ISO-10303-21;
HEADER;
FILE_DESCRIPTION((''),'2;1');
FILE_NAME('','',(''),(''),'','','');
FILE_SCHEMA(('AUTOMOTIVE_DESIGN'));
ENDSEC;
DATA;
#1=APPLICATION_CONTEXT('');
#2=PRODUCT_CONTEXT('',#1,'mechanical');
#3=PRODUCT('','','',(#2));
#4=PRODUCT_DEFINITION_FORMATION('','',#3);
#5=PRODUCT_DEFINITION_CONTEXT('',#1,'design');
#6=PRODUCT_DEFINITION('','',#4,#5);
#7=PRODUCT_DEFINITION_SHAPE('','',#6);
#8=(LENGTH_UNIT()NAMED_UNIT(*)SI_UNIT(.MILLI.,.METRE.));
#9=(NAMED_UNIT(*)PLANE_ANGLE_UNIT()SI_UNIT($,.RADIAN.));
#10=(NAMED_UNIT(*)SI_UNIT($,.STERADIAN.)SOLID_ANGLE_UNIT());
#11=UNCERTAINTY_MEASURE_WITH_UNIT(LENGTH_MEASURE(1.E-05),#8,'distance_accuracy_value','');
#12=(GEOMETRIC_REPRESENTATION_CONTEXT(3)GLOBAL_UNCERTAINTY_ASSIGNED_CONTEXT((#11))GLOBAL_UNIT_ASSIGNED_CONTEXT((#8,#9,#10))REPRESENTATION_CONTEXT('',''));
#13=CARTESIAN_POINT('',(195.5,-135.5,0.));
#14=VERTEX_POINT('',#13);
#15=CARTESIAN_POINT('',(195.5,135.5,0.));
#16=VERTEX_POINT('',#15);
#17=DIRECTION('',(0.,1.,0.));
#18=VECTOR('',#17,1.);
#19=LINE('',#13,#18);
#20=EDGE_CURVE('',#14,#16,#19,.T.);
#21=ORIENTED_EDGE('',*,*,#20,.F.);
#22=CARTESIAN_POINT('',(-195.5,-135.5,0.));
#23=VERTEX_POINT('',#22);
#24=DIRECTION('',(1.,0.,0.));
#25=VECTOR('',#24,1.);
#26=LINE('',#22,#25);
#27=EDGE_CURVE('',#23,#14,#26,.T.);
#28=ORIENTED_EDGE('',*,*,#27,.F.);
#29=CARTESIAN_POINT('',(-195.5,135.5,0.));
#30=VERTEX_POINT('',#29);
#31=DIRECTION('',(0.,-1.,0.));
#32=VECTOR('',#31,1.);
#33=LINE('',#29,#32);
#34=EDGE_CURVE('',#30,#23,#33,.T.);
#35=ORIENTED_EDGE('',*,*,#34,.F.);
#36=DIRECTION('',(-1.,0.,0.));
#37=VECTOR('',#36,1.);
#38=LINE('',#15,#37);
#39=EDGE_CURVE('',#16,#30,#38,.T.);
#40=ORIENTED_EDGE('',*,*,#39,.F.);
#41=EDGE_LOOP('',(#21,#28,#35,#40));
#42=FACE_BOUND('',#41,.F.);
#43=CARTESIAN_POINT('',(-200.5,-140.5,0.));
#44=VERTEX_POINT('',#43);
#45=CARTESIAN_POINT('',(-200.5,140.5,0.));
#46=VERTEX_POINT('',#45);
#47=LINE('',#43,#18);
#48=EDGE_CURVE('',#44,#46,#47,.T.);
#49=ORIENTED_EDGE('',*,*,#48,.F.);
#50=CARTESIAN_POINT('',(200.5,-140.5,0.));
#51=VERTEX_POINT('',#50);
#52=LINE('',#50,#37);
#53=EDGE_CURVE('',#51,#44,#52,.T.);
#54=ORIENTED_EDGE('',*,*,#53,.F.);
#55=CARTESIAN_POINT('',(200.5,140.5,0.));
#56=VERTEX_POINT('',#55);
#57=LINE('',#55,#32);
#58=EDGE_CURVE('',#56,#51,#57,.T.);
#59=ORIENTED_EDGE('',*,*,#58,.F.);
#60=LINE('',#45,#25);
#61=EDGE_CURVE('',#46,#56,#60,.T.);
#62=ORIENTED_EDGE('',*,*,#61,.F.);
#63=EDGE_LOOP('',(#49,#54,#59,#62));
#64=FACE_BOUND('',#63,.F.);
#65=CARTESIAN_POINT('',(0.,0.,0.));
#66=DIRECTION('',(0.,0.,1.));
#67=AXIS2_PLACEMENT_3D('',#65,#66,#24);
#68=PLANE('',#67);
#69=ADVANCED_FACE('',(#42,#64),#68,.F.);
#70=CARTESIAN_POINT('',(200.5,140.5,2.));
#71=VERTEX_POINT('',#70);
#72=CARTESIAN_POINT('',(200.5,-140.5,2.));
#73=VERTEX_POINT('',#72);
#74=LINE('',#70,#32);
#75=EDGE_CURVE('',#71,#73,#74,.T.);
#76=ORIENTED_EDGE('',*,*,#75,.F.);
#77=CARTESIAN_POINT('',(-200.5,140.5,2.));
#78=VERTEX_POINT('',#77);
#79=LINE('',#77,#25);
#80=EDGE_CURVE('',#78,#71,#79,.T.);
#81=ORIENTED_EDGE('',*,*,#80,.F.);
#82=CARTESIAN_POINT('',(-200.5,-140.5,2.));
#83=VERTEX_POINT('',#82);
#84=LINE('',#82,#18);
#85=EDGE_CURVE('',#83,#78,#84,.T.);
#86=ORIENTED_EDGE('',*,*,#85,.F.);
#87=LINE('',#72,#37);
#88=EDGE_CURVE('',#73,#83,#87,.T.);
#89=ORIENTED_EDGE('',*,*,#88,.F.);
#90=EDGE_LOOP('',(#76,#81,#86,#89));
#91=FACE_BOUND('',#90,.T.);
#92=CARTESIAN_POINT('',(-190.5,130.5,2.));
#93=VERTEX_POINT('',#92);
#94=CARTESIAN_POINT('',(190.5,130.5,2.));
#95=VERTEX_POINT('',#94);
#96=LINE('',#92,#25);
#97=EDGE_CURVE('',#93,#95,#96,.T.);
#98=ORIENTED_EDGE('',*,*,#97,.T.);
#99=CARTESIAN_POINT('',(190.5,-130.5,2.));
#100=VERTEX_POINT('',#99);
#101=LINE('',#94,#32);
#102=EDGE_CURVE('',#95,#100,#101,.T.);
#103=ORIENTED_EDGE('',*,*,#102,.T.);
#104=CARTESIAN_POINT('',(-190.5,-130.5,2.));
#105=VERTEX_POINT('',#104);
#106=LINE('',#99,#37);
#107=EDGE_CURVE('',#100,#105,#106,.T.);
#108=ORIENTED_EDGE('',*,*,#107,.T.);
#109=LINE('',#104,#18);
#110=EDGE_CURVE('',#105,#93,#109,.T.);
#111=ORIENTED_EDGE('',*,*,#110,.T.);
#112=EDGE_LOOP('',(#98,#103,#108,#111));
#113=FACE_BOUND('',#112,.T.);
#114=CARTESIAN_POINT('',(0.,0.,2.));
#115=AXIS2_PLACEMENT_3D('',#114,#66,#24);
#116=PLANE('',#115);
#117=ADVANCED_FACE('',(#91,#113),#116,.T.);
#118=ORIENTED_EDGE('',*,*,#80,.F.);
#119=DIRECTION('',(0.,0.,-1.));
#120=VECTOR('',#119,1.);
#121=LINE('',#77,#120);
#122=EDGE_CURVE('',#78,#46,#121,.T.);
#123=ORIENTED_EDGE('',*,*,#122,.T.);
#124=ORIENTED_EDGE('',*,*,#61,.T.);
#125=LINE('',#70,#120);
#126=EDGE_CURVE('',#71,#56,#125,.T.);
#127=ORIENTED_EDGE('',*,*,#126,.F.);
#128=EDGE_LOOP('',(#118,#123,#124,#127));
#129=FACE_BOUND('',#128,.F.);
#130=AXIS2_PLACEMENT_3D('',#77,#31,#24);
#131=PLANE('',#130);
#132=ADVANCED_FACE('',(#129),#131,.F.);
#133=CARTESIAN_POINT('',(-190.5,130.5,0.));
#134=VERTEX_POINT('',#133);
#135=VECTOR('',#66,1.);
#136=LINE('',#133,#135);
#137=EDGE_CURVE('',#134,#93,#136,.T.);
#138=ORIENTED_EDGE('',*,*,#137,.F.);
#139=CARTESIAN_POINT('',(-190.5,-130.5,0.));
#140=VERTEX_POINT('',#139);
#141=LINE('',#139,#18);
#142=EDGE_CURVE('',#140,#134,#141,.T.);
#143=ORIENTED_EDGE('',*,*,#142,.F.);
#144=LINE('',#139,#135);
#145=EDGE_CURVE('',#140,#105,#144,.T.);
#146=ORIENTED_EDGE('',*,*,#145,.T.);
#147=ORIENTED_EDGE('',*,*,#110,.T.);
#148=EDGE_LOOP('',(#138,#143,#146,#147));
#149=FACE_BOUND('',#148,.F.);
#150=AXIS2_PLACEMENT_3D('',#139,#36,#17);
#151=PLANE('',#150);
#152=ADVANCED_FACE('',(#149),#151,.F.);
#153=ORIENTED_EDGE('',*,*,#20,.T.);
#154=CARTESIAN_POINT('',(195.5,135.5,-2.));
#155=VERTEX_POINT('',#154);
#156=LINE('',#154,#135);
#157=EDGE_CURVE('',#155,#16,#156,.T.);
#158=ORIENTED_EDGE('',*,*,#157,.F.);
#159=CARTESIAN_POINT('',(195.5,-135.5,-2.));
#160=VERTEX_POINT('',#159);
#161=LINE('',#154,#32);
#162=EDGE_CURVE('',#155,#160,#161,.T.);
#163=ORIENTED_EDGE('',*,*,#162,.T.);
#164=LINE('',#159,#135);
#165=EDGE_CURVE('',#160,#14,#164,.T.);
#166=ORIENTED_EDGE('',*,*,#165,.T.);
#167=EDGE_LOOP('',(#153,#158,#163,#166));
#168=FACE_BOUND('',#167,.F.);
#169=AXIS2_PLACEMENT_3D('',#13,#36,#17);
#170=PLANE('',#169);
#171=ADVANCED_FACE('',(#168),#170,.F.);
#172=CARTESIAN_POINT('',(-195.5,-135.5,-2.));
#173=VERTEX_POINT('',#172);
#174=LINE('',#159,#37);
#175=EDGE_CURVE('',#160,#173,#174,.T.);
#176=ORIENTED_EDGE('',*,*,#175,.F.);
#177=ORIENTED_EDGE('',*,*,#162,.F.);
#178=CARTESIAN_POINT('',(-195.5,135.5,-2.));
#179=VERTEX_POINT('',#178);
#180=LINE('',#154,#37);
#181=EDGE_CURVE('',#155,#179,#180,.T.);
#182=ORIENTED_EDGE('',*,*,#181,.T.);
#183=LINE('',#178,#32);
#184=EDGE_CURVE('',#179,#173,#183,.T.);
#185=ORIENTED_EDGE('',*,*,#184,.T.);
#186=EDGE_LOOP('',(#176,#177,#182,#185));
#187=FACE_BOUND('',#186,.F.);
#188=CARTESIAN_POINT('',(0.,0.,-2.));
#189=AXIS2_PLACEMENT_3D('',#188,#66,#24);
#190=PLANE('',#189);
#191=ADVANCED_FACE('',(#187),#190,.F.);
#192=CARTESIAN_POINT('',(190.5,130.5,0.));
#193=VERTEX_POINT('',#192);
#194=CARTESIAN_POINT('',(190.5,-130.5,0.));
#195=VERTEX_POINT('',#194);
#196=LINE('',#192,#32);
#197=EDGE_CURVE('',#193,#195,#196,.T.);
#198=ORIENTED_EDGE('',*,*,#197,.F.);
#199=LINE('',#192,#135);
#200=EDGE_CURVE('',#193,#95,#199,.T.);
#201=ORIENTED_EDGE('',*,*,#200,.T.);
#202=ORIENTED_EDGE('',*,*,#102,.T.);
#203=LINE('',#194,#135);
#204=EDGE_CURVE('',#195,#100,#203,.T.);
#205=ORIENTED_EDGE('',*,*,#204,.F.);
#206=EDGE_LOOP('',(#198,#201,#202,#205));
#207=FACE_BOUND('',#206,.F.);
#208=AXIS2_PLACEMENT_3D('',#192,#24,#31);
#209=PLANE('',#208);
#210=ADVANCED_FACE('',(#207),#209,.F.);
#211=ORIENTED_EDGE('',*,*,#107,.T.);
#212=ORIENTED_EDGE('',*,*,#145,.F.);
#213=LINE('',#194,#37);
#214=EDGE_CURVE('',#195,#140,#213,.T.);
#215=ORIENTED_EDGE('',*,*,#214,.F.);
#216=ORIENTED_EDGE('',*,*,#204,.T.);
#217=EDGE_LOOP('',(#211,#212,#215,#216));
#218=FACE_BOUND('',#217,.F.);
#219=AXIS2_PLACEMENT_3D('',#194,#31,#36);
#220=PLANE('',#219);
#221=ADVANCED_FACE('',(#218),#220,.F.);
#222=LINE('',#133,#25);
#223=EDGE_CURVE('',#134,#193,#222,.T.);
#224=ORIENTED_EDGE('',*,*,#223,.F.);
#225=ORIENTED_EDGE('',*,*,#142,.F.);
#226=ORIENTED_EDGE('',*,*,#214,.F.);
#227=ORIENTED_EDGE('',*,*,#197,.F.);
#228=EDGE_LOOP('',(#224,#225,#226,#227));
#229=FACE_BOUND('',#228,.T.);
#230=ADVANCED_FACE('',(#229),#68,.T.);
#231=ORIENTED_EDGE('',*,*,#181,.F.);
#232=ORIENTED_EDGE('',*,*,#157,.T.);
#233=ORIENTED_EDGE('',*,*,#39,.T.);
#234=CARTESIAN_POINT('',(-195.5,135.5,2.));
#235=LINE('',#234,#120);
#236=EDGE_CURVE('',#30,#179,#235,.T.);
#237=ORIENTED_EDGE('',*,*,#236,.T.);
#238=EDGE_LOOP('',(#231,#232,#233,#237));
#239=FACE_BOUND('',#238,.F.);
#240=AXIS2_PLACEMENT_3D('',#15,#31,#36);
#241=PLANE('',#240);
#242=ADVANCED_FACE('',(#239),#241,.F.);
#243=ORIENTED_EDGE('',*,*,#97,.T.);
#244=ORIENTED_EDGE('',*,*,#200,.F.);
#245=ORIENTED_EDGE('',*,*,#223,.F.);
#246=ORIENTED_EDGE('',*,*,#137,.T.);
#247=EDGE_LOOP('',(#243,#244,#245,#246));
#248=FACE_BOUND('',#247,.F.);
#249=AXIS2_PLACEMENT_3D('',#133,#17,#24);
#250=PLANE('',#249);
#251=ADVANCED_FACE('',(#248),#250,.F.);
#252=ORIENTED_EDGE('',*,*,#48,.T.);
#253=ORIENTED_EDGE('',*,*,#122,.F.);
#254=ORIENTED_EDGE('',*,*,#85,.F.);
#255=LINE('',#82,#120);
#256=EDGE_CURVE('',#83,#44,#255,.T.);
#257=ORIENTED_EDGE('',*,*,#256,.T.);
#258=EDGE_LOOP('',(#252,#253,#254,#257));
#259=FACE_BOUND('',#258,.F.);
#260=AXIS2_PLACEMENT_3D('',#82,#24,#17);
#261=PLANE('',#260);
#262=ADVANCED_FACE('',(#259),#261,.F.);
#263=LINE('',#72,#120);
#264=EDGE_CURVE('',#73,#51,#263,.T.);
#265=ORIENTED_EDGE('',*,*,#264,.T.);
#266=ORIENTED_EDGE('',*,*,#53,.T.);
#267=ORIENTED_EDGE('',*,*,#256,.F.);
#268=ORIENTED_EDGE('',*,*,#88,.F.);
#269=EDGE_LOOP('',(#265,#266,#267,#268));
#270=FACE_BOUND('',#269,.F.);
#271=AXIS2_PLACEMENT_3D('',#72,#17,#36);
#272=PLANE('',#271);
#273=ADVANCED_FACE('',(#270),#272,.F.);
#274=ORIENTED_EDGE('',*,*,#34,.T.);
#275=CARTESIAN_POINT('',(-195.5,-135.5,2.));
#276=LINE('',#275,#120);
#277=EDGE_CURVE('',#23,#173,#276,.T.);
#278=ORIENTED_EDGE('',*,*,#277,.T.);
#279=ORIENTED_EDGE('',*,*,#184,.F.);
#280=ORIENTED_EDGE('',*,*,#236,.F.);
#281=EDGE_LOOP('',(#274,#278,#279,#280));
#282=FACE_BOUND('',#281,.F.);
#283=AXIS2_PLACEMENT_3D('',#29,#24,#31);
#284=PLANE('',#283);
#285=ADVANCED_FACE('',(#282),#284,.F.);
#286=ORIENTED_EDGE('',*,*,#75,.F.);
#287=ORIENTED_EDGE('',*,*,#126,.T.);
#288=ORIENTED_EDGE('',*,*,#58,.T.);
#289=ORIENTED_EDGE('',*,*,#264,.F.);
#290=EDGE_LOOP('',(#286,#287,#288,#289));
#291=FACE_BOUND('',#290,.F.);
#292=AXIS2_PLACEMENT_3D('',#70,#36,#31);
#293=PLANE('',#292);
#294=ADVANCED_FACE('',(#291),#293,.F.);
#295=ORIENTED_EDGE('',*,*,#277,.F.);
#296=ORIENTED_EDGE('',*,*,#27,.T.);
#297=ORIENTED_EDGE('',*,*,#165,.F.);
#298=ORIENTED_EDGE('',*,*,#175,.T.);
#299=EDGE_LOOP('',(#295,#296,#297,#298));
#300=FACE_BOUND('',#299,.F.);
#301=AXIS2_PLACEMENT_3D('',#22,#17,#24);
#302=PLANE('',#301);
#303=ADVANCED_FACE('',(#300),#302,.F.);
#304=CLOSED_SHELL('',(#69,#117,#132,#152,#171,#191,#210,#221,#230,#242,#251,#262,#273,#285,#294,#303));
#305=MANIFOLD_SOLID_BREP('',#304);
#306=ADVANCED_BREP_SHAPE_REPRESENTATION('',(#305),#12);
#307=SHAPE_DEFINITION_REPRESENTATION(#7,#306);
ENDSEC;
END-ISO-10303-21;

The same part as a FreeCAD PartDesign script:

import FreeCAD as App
import Part
import Sketcher
from FreeCAD import Vector
Q = App.Units.Quantity

doc = App.newDocument("Part")
body = doc.addObject("PartDesign::Body", "Body")

sketch1 = doc.addObject("Sketcher::SketchObject", "Sketch")
body.addObject(sketch1)
sketch1.AttachmentSupport = (doc.XY_Plane, [""])
sketch1.MapMode = "FlatFace"
sketch1.addGeometry([
    Part.LineSegment(Vector(-195.5, 135.5, 0), Vector(-195.5, -135.5, 0)),
    Part.LineSegment(Vector(-195.5, -135.5, 0), Vector(195.5, -135.5, 0)),
    Part.LineSegment(Vector(195.5, -135.5, 0), Vector(195.5, 135.5, 0)),
    Part.LineSegment(Vector(195.5, 135.5, 0), Vector(-195.5, 135.5, 0)),
], False)
sketch1.addConstraint([
    Sketcher.Constraint("Coincident", 0, 2, 1, 1),
    Sketcher.Constraint("Coincident", 1, 2, 2, 1),
    Sketcher.Constraint("Coincident", 2, 2, 3, 1),
    Sketcher.Constraint("Coincident", 3, 2, 0, 1),
    Sketcher.Constraint("Vertical", 0),
    Sketcher.Constraint("Horizontal", 1),
    Sketcher.Constraint("Vertical", 2),
    Sketcher.Constraint("Horizontal", 3),
    Sketcher.Constraint("Symmetric", 0, 2, 2, 2, -1, 1),
    Sketcher.Constraint("DistanceX", 1, 1, 1, 2, Q("15.3937 in")),
    Sketcher.Constraint("DistanceY", 0, 2, 0, 1, Q("10.6693 in")),
])
pad1 = doc.addObject("PartDesign::Pad", "Pad")
body.addObject(pad1)
pad1.Profile = sketch1
pad1.Length = 2
pad1.Reversed = True

sketch2 = doc.addObject("Sketcher::SketchObject", "Sketch001")
body.addObject(sketch2)
sketch2.AttachmentSupport = (doc.XY_Plane, [""])
sketch2.MapMode = "FlatFace"
sketch2.addGeometry([
    Part.LineSegment(Vector(-195.5, -135.5, 0), Vector(195.5, -135.5, 0)),
    Part.LineSegment(Vector(195.5, -135.5, 0), Vector(195.5, 135.5, 0)),
    Part.LineSegment(Vector(195.5, 135.5, 0), Vector(-195.5, 135.5, 0)),
    Part.LineSegment(Vector(-195.5, 135.5, 0), Vector(-195.5, -135.5, 0)),
    Part.LineSegment(Vector(-190.5, -130.5, 0), Vector(-190.5, 130.5, 0)),
    Part.LineSegment(Vector(-190.5, 130.5, 0), Vector(190.5, 130.5, 0)),
    Part.LineSegment(Vector(190.5, 130.5, 0), Vector(190.5, -130.5, 0)),
    Part.LineSegment(Vector(190.5, -130.5, 0), Vector(-190.5, -130.5, 0)),
], False)
sketch2.addConstraint([
    Sketcher.Constraint("Coincident", 0, 2, 1, 1),
    Sketcher.Constraint("Coincident", 1, 2, 2, 1),
    Sketcher.Constraint("Coincident", 2, 2, 3, 1),
    Sketcher.Constraint("Coincident", 3, 2, 0, 1),
    Sketcher.Constraint("Coincident", 4, 2, 5, 1),
    Sketcher.Constraint("Coincident", 5, 2, 6, 1),
    Sketcher.Constraint("Coincident", 6, 2, 7, 1),
    Sketcher.Constraint("Coincident", 7, 2, 4, 1),
    Sketcher.Constraint("Horizontal", 0),
    Sketcher.Constraint("Vertical", 1),
    Sketcher.Constraint("Horizontal", 2),
    Sketcher.Constraint("Vertical", 3),
    Sketcher.Constraint("Vertical", 4),
    Sketcher.Constraint("Horizontal", 5),
    Sketcher.Constraint("Vertical", 6),
    Sketcher.Constraint("Horizontal", 7),
    Sketcher.Constraint("Symmetric", 0, 2, 2, 2, -1, 1),
    Sketcher.Constraint("Symmetric", 4, 2, 6, 2, -1, 1),
    Sketcher.Constraint("DistanceX", 5, 1, 5, 2, Q("15 in")),
    Sketcher.Constraint("DistanceX", 2, 2, 4, 2, Q("5 mm")),
    Sketcher.Constraint("DistanceY", 4, 2, 2, 2, Q("5 mm")),
    Sketcher.Constraint("DistanceY", 1, 1, 1, 2, Q("10.6693 in")),
])
pad2 = doc.addObject("PartDesign::Pad", "Pad001")
body.addObject(pad2)
pad2.Profile = sketch2
pad2.Length = 2

sketch3 = doc.addObject("Sketcher::SketchObject", "Sketch002")
body.addObject(sketch3)
sketch3.AttachmentSupport = (doc.XY_Plane, [""])
sketch3.MapMode = "FlatFace"
sketch3.AttachmentOffset = App.Placement(Vector(0, 0, 2), App.Rotation())
sketch3.addGeometry([
    Part.LineSegment(Vector(200.5, 140.5, 0), Vector(-200.5, 140.5, 0)),
    Part.LineSegment(Vector(-200.5, 140.5, 0), Vector(-200.5, -140.5, 0)),
    Part.LineSegment(Vector(-200.5, -140.5, 0), Vector(200.5, -140.5, 0)),
    Part.LineSegment(Vector(200.5, -140.5, 0), Vector(200.5, 140.5, 0)),
    Part.LineSegment(Vector(-195.5, 135.5, 0), Vector(195.5, 135.5, 0)),
    Part.LineSegment(Vector(195.5, 135.5, 0), Vector(195.5, -135.5, 0)),
    Part.LineSegment(Vector(195.5, -135.5, 0), Vector(-195.5, -135.5, 0)),
    Part.LineSegment(Vector(-195.5, -135.5, 0), Vector(-195.5, 135.5, 0)),
], False)
sketch3.addConstraint([
    Sketcher.Constraint("Coincident", 0, 2, 1, 1),
    Sketcher.Constraint("Coincident", 1, 2, 2, 1),
    Sketcher.Constraint("Coincident", 2, 2, 3, 1),
    Sketcher.Constraint("Coincident", 3, 2, 0, 1),
    Sketcher.Constraint("Coincident", 4, 2, 5, 1),
    Sketcher.Constraint("Coincident", 5, 2, 6, 1),
    Sketcher.Constraint("Coincident", 6, 2, 7, 1),
    Sketcher.Constraint("Coincident", 7, 2, 4, 1),
    Sketcher.Constraint("Horizontal", 0),
    Sketcher.Constraint("Vertical", 1),
    Sketcher.Constraint("Horizontal", 2),
    Sketcher.Constraint("Vertical", 3),
    Sketcher.Constraint("Horizontal", 4),
    Sketcher.Constraint("Vertical", 5),
    Sketcher.Constraint("Horizontal", 6),
    Sketcher.Constraint("Vertical", 7),
    Sketcher.Constraint("Symmetric", 0, 2, 2, 2, -1, 1),
    Sketcher.Constraint("Symmetric", 4, 2, 6, 2, -1, 1),
    Sketcher.Constraint("DistanceY", 1, 2, 1, 1, Q("11.063 in")),
    Sketcher.Constraint("DistanceX", 4, 2, 3, 2, Q("5 mm")),
    Sketcher.Constraint("DistanceY", 4, 2, 3, 2, Q("5 mm")),
    Sketcher.Constraint("DistanceX", 0, 2, 0, 1, Q("15.7874 in")),
])
pad3 = doc.addObject("PartDesign::Pad", "Pad002")
body.addObject(pad3)
pad3.Profile = sketch3
pad3.Length = 2
pad3.Reversed = True

doc.recompute()
